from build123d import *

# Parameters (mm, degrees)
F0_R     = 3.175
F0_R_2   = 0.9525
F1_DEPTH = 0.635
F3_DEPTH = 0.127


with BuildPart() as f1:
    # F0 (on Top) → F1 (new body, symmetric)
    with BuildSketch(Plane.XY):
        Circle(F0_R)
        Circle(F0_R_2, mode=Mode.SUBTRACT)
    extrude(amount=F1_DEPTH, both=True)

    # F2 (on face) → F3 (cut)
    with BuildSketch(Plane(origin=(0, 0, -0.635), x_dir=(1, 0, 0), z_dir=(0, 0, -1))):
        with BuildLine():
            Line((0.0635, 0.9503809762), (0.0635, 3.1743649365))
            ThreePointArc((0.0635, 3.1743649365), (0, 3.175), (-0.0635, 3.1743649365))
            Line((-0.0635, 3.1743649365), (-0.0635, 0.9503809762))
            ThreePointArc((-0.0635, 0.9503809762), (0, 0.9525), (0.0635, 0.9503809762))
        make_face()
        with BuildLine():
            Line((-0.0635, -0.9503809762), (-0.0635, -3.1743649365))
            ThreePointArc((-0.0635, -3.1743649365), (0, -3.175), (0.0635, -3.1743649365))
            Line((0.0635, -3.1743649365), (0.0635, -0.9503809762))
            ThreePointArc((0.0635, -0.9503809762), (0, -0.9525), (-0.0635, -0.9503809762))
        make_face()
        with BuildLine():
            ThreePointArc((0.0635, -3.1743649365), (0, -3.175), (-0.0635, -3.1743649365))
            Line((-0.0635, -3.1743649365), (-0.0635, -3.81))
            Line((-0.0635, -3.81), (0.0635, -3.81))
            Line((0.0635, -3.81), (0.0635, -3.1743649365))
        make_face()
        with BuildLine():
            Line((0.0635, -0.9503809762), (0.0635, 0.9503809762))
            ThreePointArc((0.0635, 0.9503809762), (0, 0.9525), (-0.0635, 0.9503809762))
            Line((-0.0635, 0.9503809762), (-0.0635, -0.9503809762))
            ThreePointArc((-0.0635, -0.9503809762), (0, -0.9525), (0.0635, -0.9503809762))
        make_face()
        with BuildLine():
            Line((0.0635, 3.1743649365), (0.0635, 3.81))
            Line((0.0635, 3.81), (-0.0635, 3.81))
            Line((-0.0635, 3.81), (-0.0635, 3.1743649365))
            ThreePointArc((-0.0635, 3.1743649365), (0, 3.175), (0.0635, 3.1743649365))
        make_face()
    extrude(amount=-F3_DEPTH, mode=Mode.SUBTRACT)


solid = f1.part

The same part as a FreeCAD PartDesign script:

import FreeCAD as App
import Part
import Sketcher
from FreeCAD import Vector
Q = App.Units.Quantity


def add_polygon(sketch, points):
    """Adds a closed chain of lines whose ends are joined by coincident constraints."""
    first, n = sketch.GeometryCount, len(points)
    for a, b in zip(points, points[1:] + points[:1]):
        sketch.addGeometry(Part.LineSegment(App.Vector(*a, 0), App.Vector(*b, 0)), False)
    for i in range(n):
        sketch.addConstraint(Sketcher.Constraint("Coincident", first + i, 2, first + (i + 1) % n, 1))

doc = App.newDocument("Part")
params = doc.addObject("Spreadsheet::Sheet", "Params")
for row, (alias, value) in enumerate([
    ("sketch1_diameter", "0.25 in"),
    ("sketch1_diameter2", "0.075 in"),
    ("pad1_length", "0.05 in"),
    ("sketch2_height", "0.3 in"),
    ("sketch2_width", "0.005 in"),
    ("pocket1_length", "0.005 in"),
], start=1):
    params.set(f"A{row}", alias)
    params.set(f"B{row}", "=" + value)
    params.setAlias(f"B{row}", alias)

body = doc.addObject("PartDesign::Body", "Body")

# Sketch on XY plane
sketch1 = body.newObject("Sketcher::SketchObject", "Sketch")
sketch1.AttachmentSupport = (doc.getObject("XY_Plane"), [""])
sketch1.MapMode = "FlatFace"
sketch1.addGeometry([
    Part.Circle(Vector(0, 0, 0), Vector(0, 0, 1), 3.2),
    Part.Circle(Vector(0, 0, 0), Vector(0, 0, 1), 1),
], False)
sketch1.addConstraint([
    Sketcher.Constraint("Coincident", 0, 3, -1, 1),
    Sketcher.Constraint("Coincident", 1, 3, -1, 1),
    Sketcher.Constraint("Diameter", 0, Q("0.25 in")),
    Sketcher.Constraint("Diameter", 1, Q("0.075 in")),
])
sketch1.setExpression("Constraints[2]", "Params.sketch1_diameter")
sketch1.setExpression("Constraints[3]", "Params.sketch1_diameter2")
pad1 = body.newObject("PartDesign::Pad", "Pad")
pad1.Profile = sketch1
pad1.setExpression("Length", "Params.pad1_length")
pad1.Midplane = True

# Sketch on XY plane
sketch2 = body.newObject("Sketcher::SketchObject", "Sketch001")
sketch2.AttachmentSupport = (doc.getObject("XY_Plane"), [""])
sketch2.MapMode = "FlatFace"
sketch2.AttachmentOffset = App.Placement(Vector(0, 0, -0.025 * 25.4), App.Rotation())
add_polygon(sketch2, [(-0.06, 3.81), (0.06, 3.81), (0.06, -3.81), (-0.06, -3.81)])  # lines 0-3
sketch2.addConstraint([
    Sketcher.Constraint("Horizontal", 0),
    Sketcher.Constraint("Vertical", 1),
    Sketcher.Constraint("Horizontal", 2),
    Sketcher.Constraint("Vertical", 3),
    Sketcher.Constraint("Symmetric", 0, 2, 2, 2, -1, 1),
    Sketcher.Constraint("DistanceY", 1, 2, 1, 1, Q("0.3 in")),
    Sketcher.Constraint("DistanceX", 0, 1, 0, 2, Q("0.005 in")),
])
sketch2.setExpression("Constraints[9]", "Params.sketch2_height")
sketch2.setExpression("Constraints[10]", "Params.sketch2_width")
pocket1 = body.newObject("PartDesign::Pocket", "Pocket")
pocket1.Profile = sketch2
pocket1.setExpression("Length", "Params.pocket1_length")
pocket1.Reversed = True

doc.recompute()
